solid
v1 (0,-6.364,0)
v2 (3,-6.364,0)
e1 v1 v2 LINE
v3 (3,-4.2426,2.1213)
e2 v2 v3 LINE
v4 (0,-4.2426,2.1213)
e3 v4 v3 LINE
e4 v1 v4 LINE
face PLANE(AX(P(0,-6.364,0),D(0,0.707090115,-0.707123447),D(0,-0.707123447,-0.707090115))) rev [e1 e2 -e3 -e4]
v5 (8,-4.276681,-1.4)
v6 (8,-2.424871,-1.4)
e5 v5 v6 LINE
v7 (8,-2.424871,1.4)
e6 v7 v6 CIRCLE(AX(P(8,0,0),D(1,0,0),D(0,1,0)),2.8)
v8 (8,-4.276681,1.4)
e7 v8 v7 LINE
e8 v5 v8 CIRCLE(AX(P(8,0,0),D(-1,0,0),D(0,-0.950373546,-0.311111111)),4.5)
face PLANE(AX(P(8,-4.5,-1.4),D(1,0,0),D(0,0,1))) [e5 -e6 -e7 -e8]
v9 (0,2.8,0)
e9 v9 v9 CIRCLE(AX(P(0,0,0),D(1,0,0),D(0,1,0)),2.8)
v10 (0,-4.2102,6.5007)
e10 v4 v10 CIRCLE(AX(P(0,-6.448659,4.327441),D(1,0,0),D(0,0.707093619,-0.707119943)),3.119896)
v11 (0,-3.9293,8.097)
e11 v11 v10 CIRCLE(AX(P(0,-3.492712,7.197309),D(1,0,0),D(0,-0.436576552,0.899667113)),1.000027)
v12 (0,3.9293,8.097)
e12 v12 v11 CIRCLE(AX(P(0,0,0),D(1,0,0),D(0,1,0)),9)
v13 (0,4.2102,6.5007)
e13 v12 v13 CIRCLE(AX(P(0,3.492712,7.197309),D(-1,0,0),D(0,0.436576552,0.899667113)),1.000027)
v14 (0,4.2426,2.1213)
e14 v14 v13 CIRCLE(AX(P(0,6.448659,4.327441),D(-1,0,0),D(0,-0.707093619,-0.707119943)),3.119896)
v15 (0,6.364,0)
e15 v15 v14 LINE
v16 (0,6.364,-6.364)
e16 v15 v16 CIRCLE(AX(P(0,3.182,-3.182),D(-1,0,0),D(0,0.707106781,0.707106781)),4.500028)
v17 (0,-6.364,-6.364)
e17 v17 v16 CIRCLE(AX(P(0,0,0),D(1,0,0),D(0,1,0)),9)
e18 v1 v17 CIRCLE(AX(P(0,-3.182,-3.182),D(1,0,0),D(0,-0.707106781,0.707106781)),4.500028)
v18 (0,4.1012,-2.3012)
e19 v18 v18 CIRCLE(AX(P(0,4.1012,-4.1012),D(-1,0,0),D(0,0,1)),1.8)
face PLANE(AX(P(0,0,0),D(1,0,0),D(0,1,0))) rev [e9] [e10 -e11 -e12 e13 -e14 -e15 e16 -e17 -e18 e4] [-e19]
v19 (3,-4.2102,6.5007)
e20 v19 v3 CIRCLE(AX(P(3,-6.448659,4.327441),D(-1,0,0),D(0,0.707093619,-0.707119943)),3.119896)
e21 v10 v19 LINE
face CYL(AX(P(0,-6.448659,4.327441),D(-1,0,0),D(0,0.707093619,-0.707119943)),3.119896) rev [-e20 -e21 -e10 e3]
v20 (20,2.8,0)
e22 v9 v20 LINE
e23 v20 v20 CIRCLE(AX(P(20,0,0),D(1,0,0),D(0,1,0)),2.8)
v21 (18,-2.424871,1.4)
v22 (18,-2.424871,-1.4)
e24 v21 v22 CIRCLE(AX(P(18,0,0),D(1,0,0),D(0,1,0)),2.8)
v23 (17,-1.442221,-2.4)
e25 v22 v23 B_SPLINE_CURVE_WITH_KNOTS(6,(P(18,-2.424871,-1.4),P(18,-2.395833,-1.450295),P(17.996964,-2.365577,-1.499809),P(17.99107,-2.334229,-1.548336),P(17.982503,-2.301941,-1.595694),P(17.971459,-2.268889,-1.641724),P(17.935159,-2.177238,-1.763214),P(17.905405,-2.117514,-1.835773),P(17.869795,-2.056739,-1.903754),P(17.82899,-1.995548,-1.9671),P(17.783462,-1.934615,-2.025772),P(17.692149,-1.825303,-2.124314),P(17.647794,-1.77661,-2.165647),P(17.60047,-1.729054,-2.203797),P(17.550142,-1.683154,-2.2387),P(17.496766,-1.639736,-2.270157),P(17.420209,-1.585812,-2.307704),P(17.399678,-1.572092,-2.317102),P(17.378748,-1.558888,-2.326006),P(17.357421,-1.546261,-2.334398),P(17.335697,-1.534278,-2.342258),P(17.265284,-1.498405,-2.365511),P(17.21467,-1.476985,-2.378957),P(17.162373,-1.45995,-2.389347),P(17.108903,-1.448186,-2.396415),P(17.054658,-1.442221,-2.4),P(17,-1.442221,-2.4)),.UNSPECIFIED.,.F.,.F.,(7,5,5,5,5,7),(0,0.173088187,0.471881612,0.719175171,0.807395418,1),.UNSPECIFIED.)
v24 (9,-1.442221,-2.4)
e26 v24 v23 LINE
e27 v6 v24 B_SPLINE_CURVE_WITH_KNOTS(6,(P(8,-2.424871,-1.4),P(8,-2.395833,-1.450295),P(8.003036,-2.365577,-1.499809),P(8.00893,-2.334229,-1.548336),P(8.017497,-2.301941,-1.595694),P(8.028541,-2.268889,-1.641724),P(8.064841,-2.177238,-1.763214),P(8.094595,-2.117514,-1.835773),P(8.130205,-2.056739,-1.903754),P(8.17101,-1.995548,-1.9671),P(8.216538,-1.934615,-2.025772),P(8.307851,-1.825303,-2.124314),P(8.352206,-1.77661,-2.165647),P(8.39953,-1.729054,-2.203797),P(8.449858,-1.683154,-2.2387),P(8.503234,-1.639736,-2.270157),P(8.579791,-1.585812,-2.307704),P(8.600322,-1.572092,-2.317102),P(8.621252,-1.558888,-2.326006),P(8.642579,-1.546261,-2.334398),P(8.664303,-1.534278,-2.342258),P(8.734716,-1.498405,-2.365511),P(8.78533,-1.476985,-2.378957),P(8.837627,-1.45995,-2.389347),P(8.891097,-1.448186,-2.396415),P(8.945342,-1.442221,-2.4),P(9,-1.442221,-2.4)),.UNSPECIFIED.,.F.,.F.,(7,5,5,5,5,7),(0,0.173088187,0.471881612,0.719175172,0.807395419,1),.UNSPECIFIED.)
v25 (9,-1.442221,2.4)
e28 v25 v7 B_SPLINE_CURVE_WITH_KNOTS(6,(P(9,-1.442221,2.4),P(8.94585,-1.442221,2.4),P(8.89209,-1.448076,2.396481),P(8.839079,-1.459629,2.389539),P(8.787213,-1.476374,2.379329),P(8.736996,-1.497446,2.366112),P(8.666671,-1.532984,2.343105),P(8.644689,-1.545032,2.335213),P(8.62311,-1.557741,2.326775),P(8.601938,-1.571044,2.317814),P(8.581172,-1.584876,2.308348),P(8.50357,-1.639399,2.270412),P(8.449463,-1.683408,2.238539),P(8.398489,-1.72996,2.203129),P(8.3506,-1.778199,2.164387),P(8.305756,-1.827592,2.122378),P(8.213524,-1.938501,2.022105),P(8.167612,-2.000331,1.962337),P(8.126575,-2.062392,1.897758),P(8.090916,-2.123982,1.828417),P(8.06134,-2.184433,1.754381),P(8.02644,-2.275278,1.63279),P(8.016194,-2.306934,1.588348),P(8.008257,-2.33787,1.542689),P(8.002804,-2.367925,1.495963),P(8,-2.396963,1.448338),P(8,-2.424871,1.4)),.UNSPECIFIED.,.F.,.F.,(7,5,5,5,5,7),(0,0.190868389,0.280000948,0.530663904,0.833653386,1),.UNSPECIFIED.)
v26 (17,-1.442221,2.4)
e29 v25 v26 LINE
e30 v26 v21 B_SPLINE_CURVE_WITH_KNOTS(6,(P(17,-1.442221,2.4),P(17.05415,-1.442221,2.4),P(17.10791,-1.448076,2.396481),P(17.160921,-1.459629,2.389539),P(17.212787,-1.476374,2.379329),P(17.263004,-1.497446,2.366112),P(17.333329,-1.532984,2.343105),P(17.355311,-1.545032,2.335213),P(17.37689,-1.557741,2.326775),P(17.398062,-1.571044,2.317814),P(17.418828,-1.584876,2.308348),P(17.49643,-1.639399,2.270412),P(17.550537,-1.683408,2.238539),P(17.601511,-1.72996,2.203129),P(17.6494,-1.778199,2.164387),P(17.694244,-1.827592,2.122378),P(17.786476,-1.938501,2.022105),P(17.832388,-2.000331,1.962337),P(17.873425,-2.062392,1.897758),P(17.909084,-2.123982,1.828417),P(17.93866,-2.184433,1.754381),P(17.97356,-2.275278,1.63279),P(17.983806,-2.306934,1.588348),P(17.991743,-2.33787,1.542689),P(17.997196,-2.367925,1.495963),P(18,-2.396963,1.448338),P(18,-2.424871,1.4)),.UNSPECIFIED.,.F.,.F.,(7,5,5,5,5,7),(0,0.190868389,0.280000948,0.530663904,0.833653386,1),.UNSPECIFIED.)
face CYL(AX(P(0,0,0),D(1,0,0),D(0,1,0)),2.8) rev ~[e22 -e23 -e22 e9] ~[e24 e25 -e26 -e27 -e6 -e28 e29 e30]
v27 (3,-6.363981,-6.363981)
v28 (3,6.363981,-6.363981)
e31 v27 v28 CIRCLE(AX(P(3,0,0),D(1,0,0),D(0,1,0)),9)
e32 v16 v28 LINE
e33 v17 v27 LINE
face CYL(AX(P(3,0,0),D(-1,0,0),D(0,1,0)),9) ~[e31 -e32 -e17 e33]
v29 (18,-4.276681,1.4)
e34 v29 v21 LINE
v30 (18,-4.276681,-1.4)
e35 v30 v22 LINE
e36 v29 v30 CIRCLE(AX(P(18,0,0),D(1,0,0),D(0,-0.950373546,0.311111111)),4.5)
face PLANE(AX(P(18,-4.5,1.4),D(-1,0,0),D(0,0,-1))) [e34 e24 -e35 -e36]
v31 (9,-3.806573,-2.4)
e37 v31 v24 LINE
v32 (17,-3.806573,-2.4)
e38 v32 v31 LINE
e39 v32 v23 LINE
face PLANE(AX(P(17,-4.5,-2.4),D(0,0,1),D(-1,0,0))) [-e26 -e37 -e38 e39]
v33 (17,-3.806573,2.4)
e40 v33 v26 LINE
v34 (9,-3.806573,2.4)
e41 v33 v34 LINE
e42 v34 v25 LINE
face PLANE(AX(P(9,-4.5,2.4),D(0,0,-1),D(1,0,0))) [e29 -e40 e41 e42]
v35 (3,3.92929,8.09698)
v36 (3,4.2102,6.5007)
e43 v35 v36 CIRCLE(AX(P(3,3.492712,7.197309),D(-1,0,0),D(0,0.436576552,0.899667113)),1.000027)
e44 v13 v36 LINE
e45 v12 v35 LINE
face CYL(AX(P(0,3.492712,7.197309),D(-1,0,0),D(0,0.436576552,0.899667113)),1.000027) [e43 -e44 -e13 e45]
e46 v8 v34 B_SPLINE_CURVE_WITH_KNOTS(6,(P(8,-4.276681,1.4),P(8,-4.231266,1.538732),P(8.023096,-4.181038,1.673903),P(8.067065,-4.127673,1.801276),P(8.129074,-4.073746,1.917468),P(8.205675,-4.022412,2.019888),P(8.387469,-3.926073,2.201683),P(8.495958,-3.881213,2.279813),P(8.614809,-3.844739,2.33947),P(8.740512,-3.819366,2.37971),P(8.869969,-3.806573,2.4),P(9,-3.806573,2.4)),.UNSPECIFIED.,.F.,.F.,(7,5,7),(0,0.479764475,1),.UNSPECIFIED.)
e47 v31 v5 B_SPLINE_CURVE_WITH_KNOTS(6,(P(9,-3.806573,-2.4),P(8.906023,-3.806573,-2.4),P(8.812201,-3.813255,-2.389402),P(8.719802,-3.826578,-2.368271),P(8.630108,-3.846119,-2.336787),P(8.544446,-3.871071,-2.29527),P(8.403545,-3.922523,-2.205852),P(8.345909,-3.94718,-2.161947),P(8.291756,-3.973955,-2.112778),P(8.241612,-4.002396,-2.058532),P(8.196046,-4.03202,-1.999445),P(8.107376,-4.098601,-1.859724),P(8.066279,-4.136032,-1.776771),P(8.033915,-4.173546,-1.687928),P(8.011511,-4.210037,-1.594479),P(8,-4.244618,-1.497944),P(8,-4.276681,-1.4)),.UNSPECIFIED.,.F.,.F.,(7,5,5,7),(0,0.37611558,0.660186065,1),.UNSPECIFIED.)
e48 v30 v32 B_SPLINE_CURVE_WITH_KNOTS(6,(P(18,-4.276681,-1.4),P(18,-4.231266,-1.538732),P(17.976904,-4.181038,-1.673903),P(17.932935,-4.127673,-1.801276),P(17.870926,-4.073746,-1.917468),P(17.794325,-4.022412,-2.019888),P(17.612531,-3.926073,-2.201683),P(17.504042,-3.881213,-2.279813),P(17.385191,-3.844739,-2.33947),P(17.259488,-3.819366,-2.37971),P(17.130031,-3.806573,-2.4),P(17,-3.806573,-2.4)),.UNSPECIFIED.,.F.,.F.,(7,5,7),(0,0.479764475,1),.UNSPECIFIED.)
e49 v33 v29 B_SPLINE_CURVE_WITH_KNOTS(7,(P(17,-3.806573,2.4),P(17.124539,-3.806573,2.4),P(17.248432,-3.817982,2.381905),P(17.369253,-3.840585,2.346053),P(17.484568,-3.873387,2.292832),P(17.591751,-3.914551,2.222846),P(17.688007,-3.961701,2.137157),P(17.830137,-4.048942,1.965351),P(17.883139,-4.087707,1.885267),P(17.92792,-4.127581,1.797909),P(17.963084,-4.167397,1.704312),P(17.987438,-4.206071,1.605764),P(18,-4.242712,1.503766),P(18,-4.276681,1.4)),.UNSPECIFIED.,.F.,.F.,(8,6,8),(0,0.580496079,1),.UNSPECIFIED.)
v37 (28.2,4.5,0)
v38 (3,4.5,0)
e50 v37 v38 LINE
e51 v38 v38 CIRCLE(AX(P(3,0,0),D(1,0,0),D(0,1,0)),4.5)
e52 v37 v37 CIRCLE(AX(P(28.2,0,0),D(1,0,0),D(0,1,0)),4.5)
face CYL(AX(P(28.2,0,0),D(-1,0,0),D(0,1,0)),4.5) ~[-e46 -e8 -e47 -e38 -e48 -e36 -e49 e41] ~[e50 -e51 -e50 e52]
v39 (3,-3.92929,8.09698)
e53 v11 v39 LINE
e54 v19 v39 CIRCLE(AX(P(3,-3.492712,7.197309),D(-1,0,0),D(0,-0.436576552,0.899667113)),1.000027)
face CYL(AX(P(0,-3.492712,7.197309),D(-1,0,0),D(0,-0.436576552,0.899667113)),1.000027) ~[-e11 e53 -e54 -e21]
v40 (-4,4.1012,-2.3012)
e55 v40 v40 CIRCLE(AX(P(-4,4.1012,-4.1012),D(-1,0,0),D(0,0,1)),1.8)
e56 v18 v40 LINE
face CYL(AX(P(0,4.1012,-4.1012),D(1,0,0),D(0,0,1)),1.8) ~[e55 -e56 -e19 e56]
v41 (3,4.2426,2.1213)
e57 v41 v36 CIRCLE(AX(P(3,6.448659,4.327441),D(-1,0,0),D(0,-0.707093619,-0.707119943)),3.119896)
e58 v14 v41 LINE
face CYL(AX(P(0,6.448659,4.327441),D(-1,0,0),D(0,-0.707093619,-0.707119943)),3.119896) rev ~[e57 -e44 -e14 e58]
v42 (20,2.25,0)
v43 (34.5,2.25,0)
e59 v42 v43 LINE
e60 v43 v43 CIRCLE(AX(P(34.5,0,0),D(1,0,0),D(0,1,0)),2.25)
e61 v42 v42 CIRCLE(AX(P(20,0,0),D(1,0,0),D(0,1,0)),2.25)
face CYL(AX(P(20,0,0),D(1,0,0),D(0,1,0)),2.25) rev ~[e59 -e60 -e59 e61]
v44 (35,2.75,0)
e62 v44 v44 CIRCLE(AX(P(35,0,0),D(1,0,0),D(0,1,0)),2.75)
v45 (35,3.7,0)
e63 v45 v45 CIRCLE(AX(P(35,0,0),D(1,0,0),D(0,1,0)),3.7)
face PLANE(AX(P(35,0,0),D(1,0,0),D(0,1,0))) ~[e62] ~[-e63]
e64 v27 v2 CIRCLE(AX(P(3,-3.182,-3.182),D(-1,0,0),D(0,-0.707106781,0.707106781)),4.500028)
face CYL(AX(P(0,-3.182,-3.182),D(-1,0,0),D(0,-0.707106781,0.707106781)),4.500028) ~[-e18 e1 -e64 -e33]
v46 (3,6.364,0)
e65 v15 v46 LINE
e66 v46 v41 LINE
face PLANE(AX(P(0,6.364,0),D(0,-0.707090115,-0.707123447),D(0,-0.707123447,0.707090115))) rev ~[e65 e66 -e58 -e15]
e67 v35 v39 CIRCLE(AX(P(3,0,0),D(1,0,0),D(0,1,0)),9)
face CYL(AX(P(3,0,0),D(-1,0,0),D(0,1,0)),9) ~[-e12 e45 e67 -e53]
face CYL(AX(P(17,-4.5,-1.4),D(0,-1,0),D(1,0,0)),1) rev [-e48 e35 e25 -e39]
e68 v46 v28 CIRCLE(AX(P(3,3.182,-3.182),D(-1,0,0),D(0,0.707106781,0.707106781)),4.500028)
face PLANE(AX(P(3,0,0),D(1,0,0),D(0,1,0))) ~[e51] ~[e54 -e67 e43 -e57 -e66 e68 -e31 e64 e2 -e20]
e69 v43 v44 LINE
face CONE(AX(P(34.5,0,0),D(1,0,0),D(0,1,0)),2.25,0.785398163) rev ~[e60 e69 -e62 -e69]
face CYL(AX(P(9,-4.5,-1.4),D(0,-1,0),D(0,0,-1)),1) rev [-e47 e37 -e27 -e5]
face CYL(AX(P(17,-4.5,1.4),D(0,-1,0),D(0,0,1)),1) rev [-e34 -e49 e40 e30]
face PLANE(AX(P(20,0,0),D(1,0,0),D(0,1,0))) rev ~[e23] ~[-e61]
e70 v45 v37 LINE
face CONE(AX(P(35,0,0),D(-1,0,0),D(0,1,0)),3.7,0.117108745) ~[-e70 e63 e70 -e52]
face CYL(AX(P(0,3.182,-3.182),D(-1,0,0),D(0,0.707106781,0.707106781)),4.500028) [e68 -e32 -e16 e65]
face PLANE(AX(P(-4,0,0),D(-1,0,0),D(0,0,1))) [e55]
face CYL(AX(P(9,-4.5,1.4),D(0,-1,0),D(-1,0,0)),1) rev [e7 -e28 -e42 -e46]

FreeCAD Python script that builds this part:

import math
import FreeCAD as App
import Part
import Sketcher

V = App.Vector
Q = App.Units.Quantity


def edges_at(feature, points):
    """Names of the edges that pass closest to the given points."""
    edges = feature.Shape.Edges
    near = lambda p: min(range(len(edges)), key=lambda i: edges[i].distToShape(Part.Vertex(*p))[0])
    return sorted({f"Edge{near(p) + 1}" for p in points})

doc = App.newDocument("Part")
body = doc.addObject("PartDesign::Body", "Body")

# Sketch on XY plane
sketch1 = body.newObject("Sketcher::SketchObject", "Sketch")
sketch1.AttachmentSupport = (doc.getObject("XY_Plane"), [""])
sketch1.MapMode = "FlatFace"
sketch1.addGeometry(Part.LineSegment(V(0, 9, 0), V(0, 2.8, 0)), False)
sketch1.addGeometry(Part.LineSegment(V(0, 2.8, 0), V(20, 2.8, 0)), False)
sketch1.addGeometry(Part.LineSegment(V(20, 2.8, 0), V(20, 2.2, 0)), False)
sketch1.addGeometry(Part.LineSegment(V(20, 2.2, 0), V(35, 2.2, 0)), False)
sketch1.addGeometry(Part.LineSegment(V(35, 2.2, 0), V(35, 3.7, 0)), False)
sketch1.addGeometry(Part.LineSegment(V(35, 3.7, 0), V(28.2, 4.5, 0)), False)
sketch1.addGeometry(Part.LineSegment(V(28.2, 4.5, 0), V(3, 4.5, 0)), False)
sketch1.addGeometry(Part.LineSegment(V(3, 4.5, 0), V(3, 9, 0)), False)
sketch1.addGeometry(Part.LineSegment(V(3, 9, 0), V(0, 9, 0)), False)
sketch1.addConstraint(Sketcher.Constraint("Coincident", 0, 2, 1, 1))
sketch1.addConstraint(Sketcher.Constraint("Coincident", 1, 2, 2, 1))
sketch1.addConstraint(Sketcher.Constraint("Coincident", 2, 2, 3, 1))
sketch1.addConstraint(Sketcher.Constraint("Coincident", 3, 2, 4, 1))
sketch1.addConstraint(Sketcher.Constraint("Coincident", 4, 2, 5, 1))
sketch1.addConstraint(Sketcher.Constraint("Coincident", 5, 2, 6, 1))
sketch1.addConstraint(Sketcher.Constraint("Coincident", 6, 2, 7, 1))
sketch1.addConstraint(Sketcher.Constraint("Coincident", 7, 2, 8, 1))
sketch1.addConstraint(Sketcher.Constraint("Coincident", 8, 2, 0, 1))
sketch1.addConstraint(Sketcher.Constraint("Vertical", 0))
sketch1.addConstraint(Sketcher.Constraint("Horizontal", 1))
sketch1.addConstraint(Sketcher.Constraint("Vertical", 2))
sketch1.addConstraint(Sketcher.Constraint("Horizontal", 3))
sketch1.addConstraint(Sketcher.Constraint("Vertical", 4))
sketch1.addConstraint(Sketcher.Constraint("Horizontal", 6))
sketch1.addConstraint(Sketcher.Constraint("Vertical", 7))
sketch1.addConstraint(Sketcher.Constraint("Horizontal", 8))
sketch1.addConstraint(Sketcher.Constraint("PointOnObject", 0, 2, -2))
sketch1.addConstraint(Sketcher.Constraint("DistanceX", 1, 1, 1, 2, Q("20 mm")))
sketch1.addConstraint(Sketcher.Constraint("DistanceX", 8, 2, 8, 1, Q("3 mm")))
sketch1.addConstraint(Sketcher.Constraint("DistanceY", 7, 1, 7, 2, Q("4.5 mm")))
sketch1.addConstraint(Sketcher.Constraint("DistanceX", -1, 1, 3, 2, Q("35 mm")))
sketch1.addConstraint(Sketcher.Constraint("DistanceY", -1, 1, 7, 2, Q("9 mm")))
sketch1.addConstraint(Sketcher.Constraint("DistanceY", -1, 1, 0, 2, Q("2.8 mm")))
sketch1.addConstraint(Sketcher.Constraint("DistanceY", -1, 1, 4, 2, Q("3.7 mm")))
sketch1.addConstraint(Sketcher.Constraint("DistanceX", 5, 2, 4, 2, Q("6.8 mm")))
sketch1.addConstraint(Sketcher.Constraint("DistanceY", -1, 1, 2, 2, Q("2.25 mm")))
revolution = body.newObject("PartDesign::Revolution", "Revolution")
revolution.Profile = sketch1
revolution.ReferenceAxis = (sketch1, ["H_Axis"])
revolution.Angle = 360
doc.recompute()

chamfer = body.newObject("PartDesign::Chamfer", "Chamfer")
chamfer.Base = (revolution, edges_at(revolution, [(35, -2.25, 0)]))
chamfer.ChamferType = "Two distances"
chamfer.Size = 0.5
chamfer.Size2 = 0.5

# Sketch on XZ plane
sketch2 = body.newObject("Sketcher::SketchObject", "Sketch001")
sketch2.AttachmentSupport = (doc.getObject("XZ_Plane"), [""])
sketch2.MapMode = "FlatFace"
sketch2.AttachmentOffset = App.Placement(V(0, 0, 4.5), App.Rotation())
sketch2.addGeometry(Part.ArcOfCircle(Part.Circle(V(9, 1.4, 0), V(0, 0, 1), 1), math.radians(90), math.radians(180)), False)
sketch2.addGeometry(Part.LineSegment(V(9, 2.4, 0), V(17, 2.4, 0)), False)
sketch2.addGeometry(Part.ArcOfCircle(Part.Circle(V(17, 1.4, 0), V(0, 0, 1), 1), math.radians(0), math.radians(90)), False)
sketch2.addGeometry(Part.LineSegment(V(18, 1.4, 0), V(18, -1.4, 0)), False)
sketch2.addGeometry(Part.ArcOfCircle(Part.Circle(V(17, -1.4, 0), V(0, 0, 1), 1), math.radians(-90), math.radians(0)), False)
sketch2.addGeometry(Part.LineSegment(V(17, -2.4, 0), V(9, -2.4, 0)), False)
sketch2.addGeometry(Part.ArcOfCircle(Part.Circle(V(9, -1.4, 0), V(0, 0, 1), 1), math.radians(180), math.radians(270)), False)
sketch2.addGeometry(Part.LineSegment(V(8, -1.4, 0), V(8, 1.4, 0)), False)
sketch2.addConstraint(Sketcher.Constraint("Tangent", 0, 1, 1, 1))
sketch2.addConstraint(Sketcher.Constraint("Tangent", 1, 2, 2, 2))
sketch2.addConstraint(Sketcher.Constraint("Tangent", 2, 1, 3, 1))
sketch2.addConstraint(Sketcher.Constraint("Tangent", 3, 2, 4, 2))
sketch2.addConstraint(Sketcher.Constraint("Tangent", 4, 1, 5, 1))
sketch2.addConstraint(Sketcher.Constraint("Tangent", 5, 2, 6, 2))
sketch2.addConstraint(Sketcher.Constraint("Tangent", 6, 1, 7, 1))
sketch2.addConstraint(Sketcher.Constraint("Tangent", 7, 2, 0, 2))
sketch2.addConstraint(Sketcher.Constraint("Horizontal", 1))
sketch2.addConstraint(Sketcher.Constraint("Vertical", 3))
sketch2.addConstraint(Sketcher.Constraint("Horizontal", 5))
sketch2.addConstraint(Sketcher.Constraint("Vertical", 7))
sketch2.addConstraint(Sketcher.Constraint("Equal", 0, 2))
sketch2.addConstraint(Sketcher.Constraint("Equal", 2, 4))
sketch2.addConstraint(Sketcher.Constraint("Equal", 4, 6))
sketch2.addConstraint(Sketcher.Constraint("Radius", 0, Q("1 mm")))
sketch2.addConstraint(Sketcher.Constraint("DistanceX", 1, 1, 1, 2, Q("8 mm")))
sketch2.addConstraint(Sketcher.Constraint("DistanceX", -1, 1, 6, 1, Q("8 mm")))
sketch2.addConstraint(Sketcher.Constraint("DistanceY", 4, 1, 1, 2, Q("4.8 mm")))
sketch2.addConstraint(Sketcher.Constraint("DistanceY", -1, 1, 0, 3, Q("1.4 mm")))
pocket1 = body.newObject("PartDesign::Pocket", "Pocket")
pocket1.Profile = sketch2
pocket1.Type = "UpToFirst"

# Sketch on YZ plane
sketch3 = body.newObject("Sketcher::SketchObject", "Sketch002")
sketch3.AttachmentSupport = (doc.getObject("YZ_Plane"), [""])
sketch3.MapMode = "FlatFace"
sketch3.addGeometry(Part.Circle(V(4.1, -4.1, 0), V(0, 0, 1), 1.8), False)
sketch3.addConstraint(Sketcher.Constraint("Diameter", 0, Q("3.6 mm")))
sketch3.addConstraint(Sketcher.Constraint("DistanceX", -1, 1, 0, 3, Q("4.1012 mm")))
sketch3.addConstraint(Sketcher.Constraint("DistanceY", 0, 3, -1, 1, Q("4.1012 mm")))
pad1 = body.newObject("PartDesign::Pad", "Pad")
pad1.Profile = sketch3
pad1.Length = 4
pad1.Reversed = True

# Sketch on YZ plane
sketch4 = body.newObject("Sketcher::SketchObject", "Sketch003")
sketch4.AttachmentSupport = (doc.getObject("YZ_Plane"), [""])
sketch4.MapMode = "FlatFace"
sketch4.addGeometry(Part.ArcOfCircle(Part.Circle(V(3.5, 7.2, 0), V(0, 0, 1), 1), math.radians(-44), math.radians(64)), False)
sketch4.addGeometry(Part.ArcOfCircle(Part.Circle(V(0, 0, 0), V(0, 0, 1), 9), math.radians(-45), math.radians(64)), False)
sketch4.addGeometry(Part.ArcOfCircle(Part.Circle(V(3.2, -3.2, 0), V(0, 0, 1), 4.5), math.radians(-45), math.radians(45)), False)
sketch4.addGeometry(Part.LineSegment(V(6.4, 0, 0), V(4.2, 2.1, 0)), False)
sketch4.addGeometry(Part.ArcOfCircle(Part.Circle(V(6.4, 4.3, 0), V(0, 0, 1), 3.1), math.radians(136), math.radians(225)), False)
sketch4.addConstraint(Sketcher.Constraint("Tangent", 0, 2, 1, 2))
sketch4.addConstraint(Sketcher.Constraint("Tangent", 1, 1, 2, 1))
sketch4.addConstraint(Sketcher.Constraint("Tangent", 2, 2, 3, 1))
sketch4.addConstraint(Sketcher.Constraint("Tangent", 3, 2, 4, 2))
sketch4.addConstraint(Sketcher.Constraint("Tangent", 4, 1, 0, 1))
sketch4.addConstraint(Sketcher.Constraint("Coincident", 1, 3, -1, 1))
sketch4.addConstraint(Sketcher.Constraint("PointOnObject", 2, 2, -1))
sketch4.addConstraint(Sketcher.Constraint("Vertical", 1, 1, 2, 2))
sketch4.addConstraint(Sketcher.Constraint("Radius", 0, Q("1 mm")))
sketch4.addConstraint(Sketcher.Constraint("Radius", 1, Q("9 mm")))
sketch4.addConstraint(Sketcher.Constraint("Radius", 4, Q("3.12 mm")))
sketch4.addConstraint(Sketcher.Constraint("Distance", 3, Q("3 mm")))
sketch4.addConstraint(Sketcher.Constraint("DistanceX", 0, 3, 3, 2, Q("0.75 mm")))
pocket2 = body.newObject("PartDesign::Pocket", "Pocket001")
pocket2.Profile = sketch4
pocket2.Type = "ThroughAll"
pocket2.Reversed = True
doc.recompute()

mirrored = body.newObject("PartDesign::Mirrored", "Mirrored")
mirrored.Originals = [pocket2]
mirrored.MirrorPlane = (doc.getObject("XZ_Plane"), [""])
body.Tip = mirrored

doc.recompute()
